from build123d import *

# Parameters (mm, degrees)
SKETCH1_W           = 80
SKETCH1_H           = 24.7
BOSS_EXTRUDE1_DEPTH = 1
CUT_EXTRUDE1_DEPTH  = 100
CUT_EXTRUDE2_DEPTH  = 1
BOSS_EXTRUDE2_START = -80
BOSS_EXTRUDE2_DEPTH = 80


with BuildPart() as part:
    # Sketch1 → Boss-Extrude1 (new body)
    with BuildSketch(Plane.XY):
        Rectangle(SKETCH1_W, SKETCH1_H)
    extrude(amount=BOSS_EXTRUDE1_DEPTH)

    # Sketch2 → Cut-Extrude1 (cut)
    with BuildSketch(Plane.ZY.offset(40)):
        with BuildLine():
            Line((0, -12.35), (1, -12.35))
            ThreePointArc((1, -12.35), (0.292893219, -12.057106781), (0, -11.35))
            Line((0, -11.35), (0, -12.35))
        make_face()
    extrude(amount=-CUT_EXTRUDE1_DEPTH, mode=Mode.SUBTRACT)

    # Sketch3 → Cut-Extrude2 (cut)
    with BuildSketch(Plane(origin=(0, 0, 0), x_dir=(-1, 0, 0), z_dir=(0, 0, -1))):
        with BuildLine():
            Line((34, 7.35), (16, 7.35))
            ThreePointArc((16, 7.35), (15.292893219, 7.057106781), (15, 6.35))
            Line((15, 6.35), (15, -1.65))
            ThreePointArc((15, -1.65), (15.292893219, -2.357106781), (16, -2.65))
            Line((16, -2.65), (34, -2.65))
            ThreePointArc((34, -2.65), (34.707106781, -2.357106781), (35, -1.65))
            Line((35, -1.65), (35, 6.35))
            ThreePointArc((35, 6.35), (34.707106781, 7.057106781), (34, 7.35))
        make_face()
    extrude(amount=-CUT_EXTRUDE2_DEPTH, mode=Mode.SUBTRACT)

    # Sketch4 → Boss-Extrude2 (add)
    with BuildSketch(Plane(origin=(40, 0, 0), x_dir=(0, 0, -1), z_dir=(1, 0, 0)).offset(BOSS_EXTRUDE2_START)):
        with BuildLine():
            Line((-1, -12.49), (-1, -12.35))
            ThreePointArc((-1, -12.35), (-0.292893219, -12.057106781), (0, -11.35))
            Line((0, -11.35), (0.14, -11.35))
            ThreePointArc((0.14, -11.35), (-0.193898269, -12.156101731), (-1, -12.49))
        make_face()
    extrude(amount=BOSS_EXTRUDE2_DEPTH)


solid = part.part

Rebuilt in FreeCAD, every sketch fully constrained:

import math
import FreeCAD as App
import Part
import Sketcher
Q = App.Units.Quantity


def add_polygon(sketch, points):
    """Adds a closed chain of lines whose ends are joined by coincident constraints."""
    first, n = sketch.GeometryCount, len(points)
    for a, b in zip(points, points[1:] + points[:1]):
        sketch.addGeometry(Part.LineSegment(App.Vector(*a, 0), App.Vector(*b, 0)), False)
    for i in range(n):
        sketch.addConstraint(Sketcher.Constraint("Coincident", first + i, 2, first + (i + 1) % n, 1))

doc = App.newDocument("Part")
params = doc.addObject("Spreadsheet::Sheet", "Params")
for row, (alias, value) in enumerate([
    ("sketch1_width", "80 mm"),
    ("sketch1_height", "24.7 mm"),
    ("pad1_length", "1 mm"),
    ("sketch2_radius", "1 mm"),
    ("pocket1_length", "100 mm"),
    ("sketch3_radius", "1 mm"),
    ("sketch3_width", "18 mm"),
    ("sketch3_height", "8 mm"),
    ("pocket2_length", "1 mm"),
    ("sketch4_radius", "1 mm"),
    ("sketch4_radius2", "1.14 mm"),
    ("pad2_length", "80 mm"),
], start=1):
    params.set(f"A{row}", alias)
    params.set(f"B{row}", "=" + value)
    params.setAlias(f"B{row}", alias)

body = doc.addObject("PartDesign::Body", "Body")

sketch1 = doc.addObject("Sketcher::SketchObject", "Sketch")
body.addObject(sketch1)
sketch1.AttachmentSupport = (doc.XY_Plane, [""])
sketch1.MapMode = "FlatFace"
add_polygon(sketch1, [(-40, 12.35), (-40, -12.35), (40, -12.35), (40, 12.35)])
sketch1.addConstraint(Sketcher.Constraint("Vertical", 0))
sketch1.addConstraint(Sketcher.Constraint("Horizontal", 1))
sketch1.addConstraint(Sketcher.Constraint("Vertical", 2))
sketch1.addConstraint(Sketcher.Constraint("Horizontal", 3))
sketch1.addConstraint(Sketcher.Constraint("Symmetric", 0, 2, 2, 2, -1, 1))
sketch1.addConstraint(Sketcher.Constraint("DistanceX", 1, 1, 1, 2, Q("80 mm")))
sketch1.addConstraint(Sketcher.Constraint("DistanceY", 0, 2, 0, 1, Q("24.7 mm")))
sketch1.setExpression("Constraints[9]", "Params.sketch1_width")
sketch1.setExpression("Constraints[10]", "Params.sketch1_height")
pad1 = doc.addObject("PartDesign::Pad", "Pad")
body.addObject(pad1)
pad1.Profile = sketch1
pad1.setExpression("Length", "Params.pad1_length")

sketch2 = doc.addObject("Sketcher::SketchObject", "Sketch001")
body.addObject(sketch2)
sketch2.AttachmentSupport = (doc.YZ_Plane, [""])
sketch2.MapMode = "FlatFace"
sketch2.AttachmentOffset = App.Placement(App.Vector(0, 0, -40), App.Rotation())
sketch2.addGeometry(Part.LineSegment(App.Vector(-12.35, 0, 0), App.Vector(-12.35, 1, 0)), False)
sketch2.addGeometry(Part.ArcOfCircle(Part.Circle(App.Vector(-11.35, 1, 0), App.Vector(0, 0, 1), 1), math.radians(-180), math.radians(-90)), False)
sketch2.addGeometry(Part.LineSegment(App.Vector(-11.35, 0, 0), App.Vector(-12.35, 0, 0)), False)
sketch2.addConstraint(Sketcher.Constraint("Tangent", 0, 2, 1, 1))
sketch2.addConstraint(Sketcher.Constraint("Tangent", 1, 2, 2, 1))
sketch2.addConstraint(Sketcher.Constraint("Coincident", 2, 2, 0, 1))
sketch2.addConstraint(Sketcher.Constraint("Vertical", 0))
sketch2.addConstraint(Sketcher.Constraint("Horizontal", 2))
sketch2.addConstraint(Sketcher.Constraint("PointOnObject", 1, 2, -1))
sketch2.addConstraint(Sketcher.Constraint("Radius", 1, Q("1 mm")))
sketch2.addConstraint(Sketcher.Constraint("DistanceX", 1, 3, -1, 1, Q("11.35 mm")))
sketch2.setExpression("Constraints[6]", "Params.sketch2_radius")
pocket1 = doc.addObject("PartDesign::Pocket", "Pocket")
body.addObject(pocket1)
pocket1.Profile = sketch2
pocket1.setExpression("Length", "Params.pocket1_length")
pocket1.Reversed = True

sketch3 = doc.addObject("Sketcher::SketchObject", "Sketch002")
body.addObject(sketch3)
sketch3.AttachmentSupport = (doc.XY_Plane, [""])
sketch3.MapMode = "FlatFace"
sketch3.addGeometry(Part.LineSegment(App.Vector(-34, 7.35, 0), App.Vector(-16, 7.35, 0)), False)
sketch3.addGeometry(Part.ArcOfCircle(Part.Circle(App.Vector(-16, 6.35, 0), App.Vector(0, 0, 1), 1), math.radians(0), math.radians(90)), False)
sketch3.addGeometry(Part.LineSegment(App.Vector(-15, 6.35, 0), App.Vector(-15, -1.65, 0)), False)
sketch3.addGeometry(Part.ArcOfCircle(Part.Circle(App.Vector(-16, -1.65, 0), App.Vector(0, 0, 1), 1), math.radians(-90), math.radians(0)), False)
sketch3.addGeometry(Part.LineSegment(App.Vector(-16, -2.65, 0), App.Vector(-34, -2.65, 0)), False)
sketch3.addGeometry(Part.ArcOfCircle(Part.Circle(App.Vector(-34, -1.65, 0), App.Vector(0, 0, 1), 1), math.radians(-180), math.radians(-90)), False)
sketch3.addGeometry(Part.LineSegment(App.Vector(-35, -1.65, 0), App.Vector(-35, 6.35, 0)), False)
sketch3.addGeometry(Part.ArcOfCircle(Part.Circle(App.Vector(-34, 6.35, 0), App.Vector(0, 0, 1), 1), math.radians(90), math.radians(180)), False)
sketch3.addConstraint(Sketcher.Constraint("Tangent", 0, 2, 1, 2))
sketch3.addConstraint(Sketcher.Constraint("Tangent", 1, 1, 2, 1))
sketch3.addConstraint(Sketcher.Constraint("Tangent", 2, 2, 3, 2))
sketch3.addConstraint(Sketcher.Constraint("Tangent", 3, 1, 4, 1))
sketch3.addConstraint(Sketcher.Constraint("Tangent", 4, 2, 5, 2))
sketch3.addConstraint(Sketcher.Constraint("Tangent", 5, 1, 6, 1))
sketch3.addConstraint(Sketcher.Constraint("Tangent", 6, 2, 7, 2))
sketch3.addConstraint(Sketcher.Constraint("Tangent", 7, 1, 0, 1))
sketch3.addConstraint(Sketcher.Constraint("Horizontal", 0))
sketch3.addConstraint(Sketcher.Constraint("Vertical", 2))
sketch3.addConstraint(Sketcher.Constraint("Horizontal", 4))
sketch3.addConstraint(Sketcher.Constraint("Vertical", 6))
sketch3.addConstraint(Sketcher.Constraint("Equal", 1, 3))
sketch3.addConstraint(Sketcher.Constraint("Equal", 3, 5))
sketch3.addConstraint(Sketcher.Constraint("Equal", 5, 7))
sketch3.addConstraint(Sketcher.Constraint("Radius", 1, Q("1 mm")))
sketch3.addConstraint(Sketcher.Constraint("DistanceX", 0, 1, 0, 2, Q("18 mm")))
sketch3.addConstraint(Sketcher.Constraint("DistanceY", 2, 2, 2, 1, Q("8 mm")))
sketch3.addConstraint(Sketcher.Constraint("DistanceX", 1, 3, -1, 1, Q("16 mm")))
sketch3.addConstraint(Sketcher.Constraint("DistanceY", -1, 1, 1, 3, Q("6.35 mm")))
sketch3.setExpression("Constraints[15]", "Params.sketch3_radius")
sketch3.setExpression("Constraints[16]", "Params.sketch3_width")
sketch3.setExpression("Constraints[17]", "Params.sketch3_height")
pocket2 = doc.addObject("PartDesign::Pocket", "Pocket001")
body.addObject(pocket2)
pocket2.Profile = sketch3
pocket2.setExpression("Length", "Params.pocket2_length")
pocket2.Reversed = True

sketch4 = doc.addObject("Sketcher::SketchObject", "Sketch003")
body.addObject(sketch4)
sketch4.AttachmentSupport = (doc.YZ_Plane, [""])
sketch4.MapMode = "FlatFace"
sketch4.AttachmentOffset = App.Placement(App.Vector(0, 0, -40), App.Rotation())
sketch4.addGeometry(Part.LineSegment(App.Vector(-12.35, 1, 0), App.Vector(-12.49, 1, 0)), False)
sketch4.addGeometry(Part.ArcOfCircle(Part.Circle(App.Vector(-11.35, 1, 0), App.Vector(0, 0, 1), 1.14), math.radians(180), math.radians(270)), False)
sketch4.addGeometry(Part.LineSegment(App.Vector(-11.35, -0.14, 0), App.Vector(-11.35, 0, 0)), False)
sketch4.addGeometry(Part.ArcOfCircle(Part.Circle(App.Vector(-11.35, 1, 0), App.Vector(0, 0, 1), 1), math.radians(-180), math.radians(-90)), False)
sketch4.addConstraint(Sketcher.Constraint("Coincident", 0, 2, 1, 1))
sketch4.addConstraint(Sketcher.Constraint("Coincident", 1, 2, 2, 1))
sketch4.addConstraint(Sketcher.Constraint("Coincident", 2, 2, 3, 2))
sketch4.addConstraint(Sketcher.Constraint("Coincident", 3, 1, 0, 1))
sketch4.addConstraint(Sketcher.Constraint("Horizontal", 0))
sketch4.addConstraint(Sketcher.Constraint("Vertical", 2))
sketch4.addConstraint(Sketcher.Constraint("Coincident", 3, 3, 1, 3))
sketch4.addConstraint(Sketcher.Constraint("PointOnObject", 2, 2, -1))
sketch4.addConstraint(Sketcher.Constraint("Horizontal", 3, 3, 0, 2))
sketch4.addConstraint(Sketcher.Constraint("Vertical", 3, 3, 1, 2))
sketch4.addConstraint(Sketcher.Constraint("Radius", 3, Q("1 mm")))
sketch4.addConstraint(Sketcher.Constraint("Radius", 1, Q("1.14 mm")))
sketch4.addConstraint(Sketcher.Constraint("DistanceX", 1, 3, -1, 1, Q("11.35 mm")))
sketch4.setExpression("Constraints[10]", "Params.sketch4_radius")
sketch4.setExpression("Constraints[11]", "Params.sketch4_radius2")
pad2 = doc.addObject("PartDesign::Pad", "Pad001")
body.addObject(pad2)
pad2.Profile = sketch4
pad2.setExpression("Length", "Params.pad2_length")

doc.recompute()
